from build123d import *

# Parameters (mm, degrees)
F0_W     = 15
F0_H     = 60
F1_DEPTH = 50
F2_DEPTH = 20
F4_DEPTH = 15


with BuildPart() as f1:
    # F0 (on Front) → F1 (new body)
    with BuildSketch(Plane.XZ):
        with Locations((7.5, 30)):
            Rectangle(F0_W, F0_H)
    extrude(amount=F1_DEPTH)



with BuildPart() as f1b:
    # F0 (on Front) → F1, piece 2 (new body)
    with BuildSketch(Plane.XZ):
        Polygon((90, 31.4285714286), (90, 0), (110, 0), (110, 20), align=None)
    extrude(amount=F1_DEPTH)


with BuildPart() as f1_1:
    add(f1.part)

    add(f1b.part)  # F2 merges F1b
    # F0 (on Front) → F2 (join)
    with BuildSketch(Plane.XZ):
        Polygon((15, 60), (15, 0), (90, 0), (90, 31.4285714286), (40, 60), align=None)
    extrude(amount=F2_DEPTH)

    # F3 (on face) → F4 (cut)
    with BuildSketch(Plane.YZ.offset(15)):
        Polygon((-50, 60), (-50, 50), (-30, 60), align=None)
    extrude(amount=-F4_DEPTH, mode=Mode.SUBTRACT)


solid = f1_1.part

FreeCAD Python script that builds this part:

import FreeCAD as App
import Part
import Sketcher

V = App.Vector
Q = App.Units.Quantity

doc = App.newDocument("Part")
body = doc.addObject("PartDesign::Body", "Body")

# Sketch on XZ plane
sketch1 = body.newObject("Sketcher::SketchObject", "Sketch")
sketch1.AttachmentSupport = (doc.getObject("XZ_Plane"), [""])
sketch1.MapMode = "FlatFace"
sketch1.addGeometry([
    Part.LineSegment(V(0, 60, 0), V(0, 0, 0)),
    Part.LineSegment(V(0, 0, 0), V(15, 0, 0)),
    Part.LineSegment(V(15, 0, 0), V(15, 60, 0)),
    Part.LineSegment(V(15, 60, 0), V(0, 60, 0)),
], False)
sketch1.addConstraint([
    Sketcher.Constraint("Coincident", 0, 2, 1, 1),
    Sketcher.Constraint("Coincident", 1, 2, 2, 1),
    Sketcher.Constraint("Coincident", 2, 2, 3, 1),
    Sketcher.Constraint("Coincident", 3, 2, 0, 1),
    Sketcher.Constraint("Vertical", 0),
    Sketcher.Constraint("Horizontal", 1),
    Sketcher.Constraint("Vertical", 2),
    Sketcher.Constraint("Horizontal", 3),
    Sketcher.Constraint("Coincident", 0, 2, -1, 1),
    Sketcher.Constraint("DistanceX", 1, 1, 1, 2, Q("15 mm")),
    Sketcher.Constraint("DistanceY", 0, 2, 0, 1, Q("60 mm")),
])
pad1 = body.newObject("PartDesign::Pad", "Pad")
pad1.Profile = sketch1
pad1.Length = 50
body2 = doc.addObject("PartDesign::Body", "Body001")

# Sketch on XZ plane
sketch2 = body2.newObject("Sketcher::SketchObject", "Sketch001")
sketch2.AttachmentSupport = (doc.getObject("XZ_Plane001"), [""])
sketch2.MapMode = "FlatFace"
sketch2.addGeometry([
    Part.LineSegment(V(90, 31, 0), V(90, 0, 0)),
    Part.LineSegment(V(90, 0, 0), V(110, 0, 0)),
    Part.LineSegment(V(110, 0, 0), V(110, 20, 0)),
    Part.LineSegment(V(110, 20, 0), V(90, 31, 0)),
], False)
sketch2.addConstraint([
    Sketcher.Constraint("Coincident", 0, 2, 1, 1),
    Sketcher.Constraint("Coincident", 1, 2, 2, 1),
    Sketcher.Constraint("Coincident", 2, 2, 3, 1),
    Sketcher.Constraint("Coincident", 3, 2, 0, 1),
    Sketcher.Constraint("Vertical", 0),
    Sketcher.Constraint("Horizontal", 1),
    Sketcher.Constraint("Vertical", 2),
    Sketcher.Constraint("PointOnObject", 0, 2, -1),
    Sketcher.Constraint("Equal", 1, 2),
    Sketcher.Constraint("DistanceX", 1, 1, 1, 2, Q("20 mm")),
    Sketcher.Constraint("DistanceX", -1, 1, 0, 2, Q("90 mm")),
    Sketcher.Constraint("DistanceY", 0, 2, 0, 1, Q("31.428571 mm")),
])
pad2 = body2.newObject("PartDesign::Pad", "Pad001")
pad2.Profile = sketch2
pad2.Length = 50
body.AllowCompound = True
doc.recompute()

boolean = body.newObject("PartDesign::Boolean", "Boolean")
boolean.Type = "Fuse"
boolean.addObjects([body2])

# Sketch on XZ plane
sketch3 = body.newObject("Sketcher::SketchObject", "Sketch002")
sketch3.AttachmentSupport = (doc.getObject("XZ_Plane"), [""])
sketch3.MapMode = "FlatFace"
sketch3.addGeometry([
    Part.LineSegment(V(15, 60, 0), V(15, 0, 0)),  # 0
    Part.LineSegment(V(15, 0, 0), V(90, 0, 0)),  # 1
    Part.LineSegment(V(90, 0, 0), V(90, 31, 0)),  # 2
    Part.LineSegment(V(90, 31, 0), V(40, 60, 0)),  # 3
    Part.LineSegment(V(40, 60, 0), V(15, 60, 0)),  # 4
], False)
sketch3.addConstraint([
    Sketcher.Constraint("Coincident", 0, 2, 1, 1),
    Sketcher.Constraint("Coincident", 1, 2, 2, 1),
    Sketcher.Constraint("Coincident", 2, 2, 3, 1),
    Sketcher.Constraint("Coincident", 3, 2, 4, 1),
    Sketcher.Constraint("Coincident", 4, 2, 0, 1),
    Sketcher.Constraint("Vertical", 0),
    Sketcher.Constraint("Horizontal", 1),
    Sketcher.Constraint("Vertical", 2),
    Sketcher.Constraint("Horizontal", 4),
    Sketcher.Constraint("PointOnObject", 0, 2, -1),
    Sketcher.Constraint("DistanceX", 1, 1, 1, 2, Q("75 mm")),
    Sketcher.Constraint("DistanceX", 4, 2, 4, 1, Q("25 mm")),
    Sketcher.Constraint("DistanceY", 0, 2, 0, 1, Q("60 mm")),
    Sketcher.Constraint("DistanceX", -1, 1, 0, 2, Q("15 mm")),
    Sketcher.Constraint("DistanceY", 2, 1, 2, 2, Q("31.428571 mm")),
])
pad3 = body.newObject("PartDesign::Pad", "Pad002")
pad3.Profile = sketch3
pad3.Length = 20

# Sketch on YZ plane
sketch4 = body.newObject("Sketcher::SketchObject", "Sketch003")
sketch4.AttachmentSupport = (doc.getObject("YZ_Plane"), [""])
sketch4.MapMode = "FlatFace"
sketch4.AttachmentOffset = App.Placement(V(0, 0, 15), App.Rotation())
sketch4.addGeometry([
    Part.LineSegment(V(-50, 60, 0), V(-50, 50, 0)),
    Part.LineSegment(V(-50, 50, 0), V(-30, 60, 0)),
    Part.LineSegment(V(-30, 60, 0), V(-50, 60, 0)),
], False)
sketch4.addConstraint([
    Sketcher.Constraint("Coincident", 0, 2, 1, 1),
    Sketcher.Constraint("Coincident", 1, 2, 2, 1),
    Sketcher.Constraint("Coincident", 2, 2, 0, 1),
    Sketcher.Constraint("Vertical", 0),
    Sketcher.Constraint("Horizontal", 2),
    Sketcher.Constraint("DistanceX", 2, 2, 2, 1, Q("20 mm")),
    Sketcher.Constraint("DistanceY", 0, 2, 0, 1, Q("10 mm")),
    Sketcher.Constraint("DistanceX", 0, 2, -1, 1, Q("50 mm")),
    Sketcher.Constraint("DistanceY", -1, 1, 0, 2, Q("50 mm")),
])
pocket1 = body.newObject("PartDesign::Pocket", "Pocket")
pocket1.Profile = sketch4
pocket1.Length = 15

doc.recompute()
